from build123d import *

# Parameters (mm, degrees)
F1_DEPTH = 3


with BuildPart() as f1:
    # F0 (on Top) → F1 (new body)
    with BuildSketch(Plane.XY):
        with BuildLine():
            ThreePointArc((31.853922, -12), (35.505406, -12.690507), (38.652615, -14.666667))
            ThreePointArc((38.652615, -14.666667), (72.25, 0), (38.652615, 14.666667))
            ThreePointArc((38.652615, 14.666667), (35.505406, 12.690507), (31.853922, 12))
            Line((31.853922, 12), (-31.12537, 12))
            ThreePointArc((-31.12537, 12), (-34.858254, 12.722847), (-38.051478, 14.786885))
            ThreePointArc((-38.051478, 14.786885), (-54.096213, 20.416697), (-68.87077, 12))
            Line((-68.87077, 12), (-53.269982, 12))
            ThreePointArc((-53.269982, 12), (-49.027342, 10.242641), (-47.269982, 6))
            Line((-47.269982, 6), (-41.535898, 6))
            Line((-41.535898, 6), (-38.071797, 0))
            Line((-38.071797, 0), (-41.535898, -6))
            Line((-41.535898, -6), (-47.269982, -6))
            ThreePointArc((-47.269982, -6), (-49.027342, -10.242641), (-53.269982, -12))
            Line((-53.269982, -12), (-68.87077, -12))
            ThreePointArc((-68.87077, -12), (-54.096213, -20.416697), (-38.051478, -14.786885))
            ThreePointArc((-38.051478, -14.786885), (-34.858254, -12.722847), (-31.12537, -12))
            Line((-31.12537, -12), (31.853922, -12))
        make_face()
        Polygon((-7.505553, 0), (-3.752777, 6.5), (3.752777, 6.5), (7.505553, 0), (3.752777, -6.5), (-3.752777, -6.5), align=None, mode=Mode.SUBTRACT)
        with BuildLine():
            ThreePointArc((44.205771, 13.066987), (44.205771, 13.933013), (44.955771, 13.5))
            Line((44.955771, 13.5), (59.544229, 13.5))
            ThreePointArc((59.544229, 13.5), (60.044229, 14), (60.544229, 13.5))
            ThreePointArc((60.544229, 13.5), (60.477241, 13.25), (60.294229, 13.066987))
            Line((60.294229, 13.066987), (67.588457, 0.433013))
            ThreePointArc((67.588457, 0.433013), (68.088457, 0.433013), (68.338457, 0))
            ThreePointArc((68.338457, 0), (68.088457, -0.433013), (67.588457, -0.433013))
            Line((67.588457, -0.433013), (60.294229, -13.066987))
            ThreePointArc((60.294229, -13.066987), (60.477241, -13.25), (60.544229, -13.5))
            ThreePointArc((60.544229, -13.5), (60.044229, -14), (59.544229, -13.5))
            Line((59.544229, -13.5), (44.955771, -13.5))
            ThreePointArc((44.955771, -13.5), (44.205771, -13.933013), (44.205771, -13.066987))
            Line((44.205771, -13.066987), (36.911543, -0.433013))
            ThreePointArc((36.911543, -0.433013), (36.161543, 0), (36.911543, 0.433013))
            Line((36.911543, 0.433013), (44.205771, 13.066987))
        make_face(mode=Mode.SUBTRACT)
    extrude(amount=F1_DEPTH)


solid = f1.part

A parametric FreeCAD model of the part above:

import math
import FreeCAD as App
import Part
import Sketcher
from FreeCAD import Vector
Q = App.Units.Quantity

doc = App.newDocument("Part")
body = doc.addObject("PartDesign::Body", "Body")

sketch1 = doc.addObject("Sketcher::SketchObject", "Sketch")
body.addObject(sketch1)
sketch1.AttachmentSupport = (doc.XY_Plane, [""])
sketch1.MapMode = "FlatFace"
sketch1.addGeometry([
    Part.ArcOfCircle(Part.Circle(Vector(31.853921, -22.000003, 0), Vector(0, 0, 1), 10.000003), math.radians(47.166576), math.radians(89.999993)),
    Part.ArcOfCircle(Part.Circle(Vector(52.25, 0, 0), Vector(0, 0, 1), 20), math.radians(-132.833427), math.radians(132.833427)),
    Part.ArcOfCircle(Part.Circle(Vector(31.853921, 22.000003, 0), Vector(0, 0, 1), 10.000003), math.radians(-89.999993), math.radians(-47.166576)),
    Part.LineSegment(Vector(31.853922, 12, 0), Vector(-31.12537, 12, 0)),
    Part.ArcOfCircle(Part.Circle(Vector(-31.125368, 22.000006, 0), Vector(0, 0, 1), 10.000006), math.radians(-133.83712), math.radians(-90.000014)),
    Part.ArcOfCircle(Part.Circle(Vector(-52.25, 0.000002, 0), Vector(0, 0, 1), 20.499999), math.radians(46.162861), math.radians(144.171163)),
    Part.LineSegment(Vector(-68.87077, 12, 0), Vector(-53.269982, 12, 0)),
    Part.ArcOfCircle(Part.Circle(Vector(-53.269983, 5.999999, 0), Vector(0, 0, 1), 6.000001), math.radians(0.000006), math.radians(89.999994)),
    Part.LineSegment(Vector(-47.269982, 6, 0), Vector(-41.535898, 6, 0)),
    Part.LineSegment(Vector(-41.535898, 6, 0), Vector(-38.071797, 0, 0)),
    Part.LineSegment(Vector(-38.071797, 0, 0), Vector(-41.535898, -6, 0)),
    Part.LineSegment(Vector(-41.535898, -6, 0), Vector(-47.269982, -6, 0)),
    Part.ArcOfCircle(Part.Circle(Vector(-53.269983, -5.999999, 0), Vector(0, 0, 1), 6.000001), math.radians(-89.999994), math.radians(-0.000006)),
    Part.LineSegment(Vector(-53.269982, -12, 0), Vector(-68.87077, -12, 0)),
    Part.ArcOfCircle(Part.Circle(Vector(-52.25, -0.000002, 0), Vector(0, 0, 1), 20.499999), math.radians(-144.171163), math.radians(-46.162861)),
    Part.ArcOfCircle(Part.Circle(Vector(-31.125368, -22.000006, 0), Vector(0, 0, 1), 10.000006), math.radians(90.000014), math.radians(133.83712)),
    Part.LineSegment(Vector(-31.12537, -12, 0), Vector(31.853922, -12, 0)),
    Part.LineSegment(Vector(-3.752777, -6.5, 0), Vector(-7.505553, 0, 0)),
    Part.LineSegment(Vector(-7.505553, 0, 0), Vector(-3.752777, 6.5, 0)),
    Part.LineSegment(Vector(-3.752777, 6.5, 0), Vector(3.752777, 6.5, 0)),
    Part.LineSegment(Vector(3.752777, 6.5, 0), Vector(7.505553, 0, 0)),
    Part.LineSegment(Vector(7.505553, 0, 0), Vector(3.752777, -6.5, 0)),
    Part.LineSegment(Vector(3.752777, -6.5, 0), Vector(-3.752777, -6.5, 0)),
    Part.LineSegment(Vector(36.911543, 0.433013, 0), Vector(44.205771, 13.066987, 0)),
    Part.ArcOfCircle(Part.Circle(Vector(44.455771, 13.5, 0), Vector(0, 0, 1), 0.5), math.radians(0), math.radians(240.000034)),
    Part.LineSegment(Vector(44.955771, 13.5, 0), Vector(59.544229, 13.5, 0)),
    Part.ArcOfCircle(Part.Circle(Vector(60.044229, 13.5, 0), Vector(0, 0, 1), 0.5), math.radians(0), math.radians(180)),
    Part.ArcOfCircle(Part.Circle(Vector(60.044224, 13.500003, 0), Vector(0, 0, 1), 0.500005), math.radians(-59.999676), math.radians(-0.00029)),
    Part.LineSegment(Vector(60.294229, 13.066987, 0), Vector(67.588457, 0.433013, 0)),
    Part.ArcOfCircle(Part.Circle(Vector(67.838457, 0, 0), Vector(0, 0, 1), 0.5), math.radians(-0.000034), math.radians(120)),
    Part.ArcOfCircle(Part.Circle(Vector(67.838457, 0, 0), Vector(0, 0, 1), 0.5), math.radians(-120), math.radians(0.000034)),
    Part.LineSegment(Vector(67.588457, -0.433013, 0), Vector(60.294229, -13.066987, 0)),
    Part.ArcOfCircle(Part.Circle(Vector(60.044224, -13.500003, 0), Vector(0, 0, 1), 0.500005), math.radians(0.00029), math.radians(59.999676)),
    Part.ArcOfCircle(Part.Circle(Vector(60.044229, -13.5, 0), Vector(0, 0, 1), 0.5), math.radians(180), math.radians(360)),
    Part.LineSegment(Vector(59.544229, -13.5, 0), Vector(44.955771, -13.5, 0)),
    Part.ArcOfCircle(Part.Circle(Vector(44.455771, -13.5, 0), Vector(0, 0, 1), 0.5), math.radians(119.999966), math.radians(360)),
    Part.LineSegment(Vector(44.205771, -13.066987, 0), Vector(36.911543, -0.433013, 0)),
    Part.ArcOfCircle(Part.Circle(Vector(36.661543, 0, 0), Vector(0, 0, 1), 0.5), math.radians(60.000034), math.radians(299.999966)),
], False)
sketch1.addConstraint([
    Sketcher.Constraint("Tangent", 0, 1, 1, 1),
    Sketcher.Constraint("Tangent", 1, 2, 2, 2),
    Sketcher.Constraint("Tangent", 2, 1, 3, 1),
    Sketcher.Constraint("Tangent", 3, 2, 4, 2),
    Sketcher.Constraint("Tangent", 4, 1, 5, 1),
    Sketcher.Constraint("Coincident", 5, 2, 6, 1),
    Sketcher.Constraint("Tangent", 6, 2, 7, 2),
    Sketcher.Constraint("Coincident", 7, 1, 8, 1),
    Sketcher.Constraint("Coincident", 8, 2, 9, 1),
    Sketcher.Constraint("Coincident", 9, 2, 10, 1),
    Sketcher.Constraint("Coincident", 10, 2, 11, 1),
    Sketcher.Constraint("Coincident", 11, 2, 12, 2),
    Sketcher.Constraint("Tangent", 12, 1, 13, 1),
    Sketcher.Constraint("Coincident", 13, 2, 14, 1),
    Sketcher.Constraint("Tangent", 14, 2, 15, 2),
    Sketcher.Constraint("Tangent", 15, 1, 16, 1),
    Sketcher.Constraint("Tangent", 16, 2, 0, 2),
    Sketcher.Constraint("Coincident", 17, 2, 18, 1),
    Sketcher.Constraint("Coincident", 18, 2, 19, 1),
    Sketcher.Constraint("Coincident", 19, 2, 20, 1),
    Sketcher.Constraint("Coincident", 20, 2, 21, 1),
    Sketcher.Constraint("Coincident", 21, 2, 22, 1),
    Sketcher.Constraint("Coincident", 22, 2, 17, 1),
    Sketcher.Constraint("Coincident", 23, 2, 24, 2),
    Sketcher.Constraint("Coincident", 24, 1, 25, 1),
    Sketcher.Constraint("Coincident", 25, 2, 26, 2),
    Sketcher.Constraint("Coincident", 26, 1, 27, 2),
    Sketcher.Constraint("Coincident", 27, 1, 28, 1),
    Sketcher.Constraint("Coincident", 28, 2, 29, 2),
    Sketcher.Constraint("Tangent", 29, 1, 30, 2),
    Sketcher.Constraint("Coincident", 30, 1, 31, 1),
    Sketcher.Constraint("Coincident", 31, 2, 32, 2),
    Sketcher.Constraint("Coincident", 32, 1, 33, 2),
    Sketcher.Constraint("Coincident", 33, 1, 34, 1),
    Sketcher.Constraint("Coincident", 34, 2, 35, 2),
    Sketcher.Constraint("Coincident", 35, 1, 36, 1),
    Sketcher.Constraint("Coincident", 36, 2, 37, 2),
    Sketcher.Constraint("Coincident", 37, 1, 23, 1),
    Sketcher.Constraint("Horizontal", 3),
    Sketcher.Constraint("Horizontal", 6),
    Sketcher.Constraint("Horizontal", 8),
    Sketcher.Constraint("Horizontal", 11),
    Sketcher.Constraint("Horizontal", 13),
    Sketcher.Constraint("Horizontal", 16),
    Sketcher.Constraint("Horizontal", 19),
    Sketcher.Constraint("Horizontal", 22),
    Sketcher.Constraint("Horizontal", 25),
    Sketcher.Constraint("Horizontal", 34),
    Sketcher.Constraint("Coincident", 14, 3, 5, 3),
    Sketcher.Constraint("Coincident", 27, 3, 26, 3),
    Sketcher.Constraint("Coincident", 33, 3, 32, 3),
    Sketcher.Constraint("Equal", 0, 2),
    Sketcher.Constraint("Equal", 7, 12),
    Sketcher.Constraint("Equal", 5, 14),
    Sketcher.Constraint("Equal", 4, 15),
    Sketcher.Constraint("Equal", 24, 26),
    Sketcher.Constraint("Equal", 26, 29),
    Sketcher.Constraint("Equal", 29, 30),
    Sketcher.Constraint("Equal", 27, 32),
    Sketcher.Constraint("Equal", 33, 35),
    Sketcher.Constraint("Equal", 35, 37),
    Sketcher.Constraint("Symmetric", 1, 3, 5, 3, -1, 1),
    Sketcher.Constraint("Symmetric", 17, 2, 20, 2, -1, 1),
    Sketcher.Constraint("Symmetric", 18, 2, 21, 2, -1, 1),
    Sketcher.Constraint("Symmetric", 0, 3, 2, 3, -1),
    Sketcher.Constraint("Symmetric", 7, 3, 12, 3, -1),
    Sketcher.Constraint("Symmetric", 26, 3, 32, 3, -1),
    Sketcher.Constraint("Symmetric", 24, 3, 35, 3, -1),
    Sketcher.Constraint("Symmetric", 8, 2, 10, 2, -1),
    Sketcher.Constraint("Symmetric", 28, 2, 30, 1, -1),
    Sketcher.Constraint("Symmetric", 36, 2, 37, 1, -1),
    Sketcher.Constraint("PointOnObject", 9, 2, -1),
    Sketcher.Constraint("PointOnObject", 17, 2, -1),
    Sketcher.Constraint("PointOnObject", 29, 1, -1),
    Sketcher.Constraint("Parallel", 9, 17),
    Sketcher.Constraint("Parallel", 10, 18),
    Sketcher.Constraint("Parallel", 17, 20),
    Sketcher.Constraint("Parallel", 21, 23),
    Sketcher.Constraint("Parallel", 20, 28),
    Sketcher.Constraint("Parallel", 23, 31),
    Sketcher.Constraint("Parallel", 28, 36),
    Sketcher.Constraint("Horizontal", 24, 3, 26, 3),
    Sketcher.Constraint("Horizontal", 3, 2, 5, 2),
    Sketcher.Constraint("Horizontal", 12, 3, 10, 2),
    Sketcher.Constraint("Horizontal", 26, 3, 24, 1),
    Sketcher.Constraint("Horizontal", 25, 2, 26, 1),
    Sketcher.Constraint("Horizontal", 23, 2, 27, 1),
    Sketcher.Constraint("Horizontal", 35, 3, 32, 1),
    Sketcher.Constraint("Horizontal", 32, 1, 33, 1),
    Sketcher.Constraint("Horizontal", 30, 1, 36, 2),
    Sketcher.Constraint("Radius", 1, Q("20 mm")),
    Sketcher.Constraint("Radius", 7, Q("6.000001 mm")),
    Sketcher.Constraint("Radius", 5, Q("20.499999 mm")),
    Sketcher.Constraint("Radius", 24, Q("0.5 mm")),
    Sketcher.Constraint("Angle", 9, Q("-60.000004 deg")),
    Sketcher.Constraint("DistanceY", -1, 1, 7, 3, Q("5.999999 mm")),
    Sketcher.Constraint("DistanceY", 5, 3, 2, 3, Q("22.000001 mm")),
    Sketcher.Constraint("DistanceY", 33, 3, 26, 3, Q("27 mm")),
    Sketcher.Constraint("DistanceY", 21, 2, 19, 2, Q("13 mm")),
    Sketcher.Constraint("DistanceX", 5, 3, 1, 3, Q("104.5 mm")),
    Sketcher.Constraint("DistanceX", 23, 2, 24, 3, Q("0.25 mm")),
    Sketcher.Constraint("DistanceX", 28, 2, 29, 3, Q("0.25 mm")),
    Sketcher.Constraint("Radius", 4, Q("10.000006 mm")),
    Sketcher.Constraint("DistanceX", 25, 1, 25, 2, Q("14.588458 mm")),
    Sketcher.Constraint("DistanceX", 8, 2, -1, 1, Q("41.535898 mm")),
    Sketcher.Constraint("DistanceX", 6, 1, 6, 2, Q("15.600788 mm")),
    Sketcher.Constraint("DistanceX", 19, 1, 19, 2, Q("7.505554 mm")),
    Sketcher.Constraint("DistanceX", -1, 1, 24, 3, Q("44.455771 mm")),
])
pad1 = doc.addObject("PartDesign::Pad", "Pad")
body.addObject(pad1)
pad1.Profile = sketch1
pad1.Length = 3

doc.recompute()
